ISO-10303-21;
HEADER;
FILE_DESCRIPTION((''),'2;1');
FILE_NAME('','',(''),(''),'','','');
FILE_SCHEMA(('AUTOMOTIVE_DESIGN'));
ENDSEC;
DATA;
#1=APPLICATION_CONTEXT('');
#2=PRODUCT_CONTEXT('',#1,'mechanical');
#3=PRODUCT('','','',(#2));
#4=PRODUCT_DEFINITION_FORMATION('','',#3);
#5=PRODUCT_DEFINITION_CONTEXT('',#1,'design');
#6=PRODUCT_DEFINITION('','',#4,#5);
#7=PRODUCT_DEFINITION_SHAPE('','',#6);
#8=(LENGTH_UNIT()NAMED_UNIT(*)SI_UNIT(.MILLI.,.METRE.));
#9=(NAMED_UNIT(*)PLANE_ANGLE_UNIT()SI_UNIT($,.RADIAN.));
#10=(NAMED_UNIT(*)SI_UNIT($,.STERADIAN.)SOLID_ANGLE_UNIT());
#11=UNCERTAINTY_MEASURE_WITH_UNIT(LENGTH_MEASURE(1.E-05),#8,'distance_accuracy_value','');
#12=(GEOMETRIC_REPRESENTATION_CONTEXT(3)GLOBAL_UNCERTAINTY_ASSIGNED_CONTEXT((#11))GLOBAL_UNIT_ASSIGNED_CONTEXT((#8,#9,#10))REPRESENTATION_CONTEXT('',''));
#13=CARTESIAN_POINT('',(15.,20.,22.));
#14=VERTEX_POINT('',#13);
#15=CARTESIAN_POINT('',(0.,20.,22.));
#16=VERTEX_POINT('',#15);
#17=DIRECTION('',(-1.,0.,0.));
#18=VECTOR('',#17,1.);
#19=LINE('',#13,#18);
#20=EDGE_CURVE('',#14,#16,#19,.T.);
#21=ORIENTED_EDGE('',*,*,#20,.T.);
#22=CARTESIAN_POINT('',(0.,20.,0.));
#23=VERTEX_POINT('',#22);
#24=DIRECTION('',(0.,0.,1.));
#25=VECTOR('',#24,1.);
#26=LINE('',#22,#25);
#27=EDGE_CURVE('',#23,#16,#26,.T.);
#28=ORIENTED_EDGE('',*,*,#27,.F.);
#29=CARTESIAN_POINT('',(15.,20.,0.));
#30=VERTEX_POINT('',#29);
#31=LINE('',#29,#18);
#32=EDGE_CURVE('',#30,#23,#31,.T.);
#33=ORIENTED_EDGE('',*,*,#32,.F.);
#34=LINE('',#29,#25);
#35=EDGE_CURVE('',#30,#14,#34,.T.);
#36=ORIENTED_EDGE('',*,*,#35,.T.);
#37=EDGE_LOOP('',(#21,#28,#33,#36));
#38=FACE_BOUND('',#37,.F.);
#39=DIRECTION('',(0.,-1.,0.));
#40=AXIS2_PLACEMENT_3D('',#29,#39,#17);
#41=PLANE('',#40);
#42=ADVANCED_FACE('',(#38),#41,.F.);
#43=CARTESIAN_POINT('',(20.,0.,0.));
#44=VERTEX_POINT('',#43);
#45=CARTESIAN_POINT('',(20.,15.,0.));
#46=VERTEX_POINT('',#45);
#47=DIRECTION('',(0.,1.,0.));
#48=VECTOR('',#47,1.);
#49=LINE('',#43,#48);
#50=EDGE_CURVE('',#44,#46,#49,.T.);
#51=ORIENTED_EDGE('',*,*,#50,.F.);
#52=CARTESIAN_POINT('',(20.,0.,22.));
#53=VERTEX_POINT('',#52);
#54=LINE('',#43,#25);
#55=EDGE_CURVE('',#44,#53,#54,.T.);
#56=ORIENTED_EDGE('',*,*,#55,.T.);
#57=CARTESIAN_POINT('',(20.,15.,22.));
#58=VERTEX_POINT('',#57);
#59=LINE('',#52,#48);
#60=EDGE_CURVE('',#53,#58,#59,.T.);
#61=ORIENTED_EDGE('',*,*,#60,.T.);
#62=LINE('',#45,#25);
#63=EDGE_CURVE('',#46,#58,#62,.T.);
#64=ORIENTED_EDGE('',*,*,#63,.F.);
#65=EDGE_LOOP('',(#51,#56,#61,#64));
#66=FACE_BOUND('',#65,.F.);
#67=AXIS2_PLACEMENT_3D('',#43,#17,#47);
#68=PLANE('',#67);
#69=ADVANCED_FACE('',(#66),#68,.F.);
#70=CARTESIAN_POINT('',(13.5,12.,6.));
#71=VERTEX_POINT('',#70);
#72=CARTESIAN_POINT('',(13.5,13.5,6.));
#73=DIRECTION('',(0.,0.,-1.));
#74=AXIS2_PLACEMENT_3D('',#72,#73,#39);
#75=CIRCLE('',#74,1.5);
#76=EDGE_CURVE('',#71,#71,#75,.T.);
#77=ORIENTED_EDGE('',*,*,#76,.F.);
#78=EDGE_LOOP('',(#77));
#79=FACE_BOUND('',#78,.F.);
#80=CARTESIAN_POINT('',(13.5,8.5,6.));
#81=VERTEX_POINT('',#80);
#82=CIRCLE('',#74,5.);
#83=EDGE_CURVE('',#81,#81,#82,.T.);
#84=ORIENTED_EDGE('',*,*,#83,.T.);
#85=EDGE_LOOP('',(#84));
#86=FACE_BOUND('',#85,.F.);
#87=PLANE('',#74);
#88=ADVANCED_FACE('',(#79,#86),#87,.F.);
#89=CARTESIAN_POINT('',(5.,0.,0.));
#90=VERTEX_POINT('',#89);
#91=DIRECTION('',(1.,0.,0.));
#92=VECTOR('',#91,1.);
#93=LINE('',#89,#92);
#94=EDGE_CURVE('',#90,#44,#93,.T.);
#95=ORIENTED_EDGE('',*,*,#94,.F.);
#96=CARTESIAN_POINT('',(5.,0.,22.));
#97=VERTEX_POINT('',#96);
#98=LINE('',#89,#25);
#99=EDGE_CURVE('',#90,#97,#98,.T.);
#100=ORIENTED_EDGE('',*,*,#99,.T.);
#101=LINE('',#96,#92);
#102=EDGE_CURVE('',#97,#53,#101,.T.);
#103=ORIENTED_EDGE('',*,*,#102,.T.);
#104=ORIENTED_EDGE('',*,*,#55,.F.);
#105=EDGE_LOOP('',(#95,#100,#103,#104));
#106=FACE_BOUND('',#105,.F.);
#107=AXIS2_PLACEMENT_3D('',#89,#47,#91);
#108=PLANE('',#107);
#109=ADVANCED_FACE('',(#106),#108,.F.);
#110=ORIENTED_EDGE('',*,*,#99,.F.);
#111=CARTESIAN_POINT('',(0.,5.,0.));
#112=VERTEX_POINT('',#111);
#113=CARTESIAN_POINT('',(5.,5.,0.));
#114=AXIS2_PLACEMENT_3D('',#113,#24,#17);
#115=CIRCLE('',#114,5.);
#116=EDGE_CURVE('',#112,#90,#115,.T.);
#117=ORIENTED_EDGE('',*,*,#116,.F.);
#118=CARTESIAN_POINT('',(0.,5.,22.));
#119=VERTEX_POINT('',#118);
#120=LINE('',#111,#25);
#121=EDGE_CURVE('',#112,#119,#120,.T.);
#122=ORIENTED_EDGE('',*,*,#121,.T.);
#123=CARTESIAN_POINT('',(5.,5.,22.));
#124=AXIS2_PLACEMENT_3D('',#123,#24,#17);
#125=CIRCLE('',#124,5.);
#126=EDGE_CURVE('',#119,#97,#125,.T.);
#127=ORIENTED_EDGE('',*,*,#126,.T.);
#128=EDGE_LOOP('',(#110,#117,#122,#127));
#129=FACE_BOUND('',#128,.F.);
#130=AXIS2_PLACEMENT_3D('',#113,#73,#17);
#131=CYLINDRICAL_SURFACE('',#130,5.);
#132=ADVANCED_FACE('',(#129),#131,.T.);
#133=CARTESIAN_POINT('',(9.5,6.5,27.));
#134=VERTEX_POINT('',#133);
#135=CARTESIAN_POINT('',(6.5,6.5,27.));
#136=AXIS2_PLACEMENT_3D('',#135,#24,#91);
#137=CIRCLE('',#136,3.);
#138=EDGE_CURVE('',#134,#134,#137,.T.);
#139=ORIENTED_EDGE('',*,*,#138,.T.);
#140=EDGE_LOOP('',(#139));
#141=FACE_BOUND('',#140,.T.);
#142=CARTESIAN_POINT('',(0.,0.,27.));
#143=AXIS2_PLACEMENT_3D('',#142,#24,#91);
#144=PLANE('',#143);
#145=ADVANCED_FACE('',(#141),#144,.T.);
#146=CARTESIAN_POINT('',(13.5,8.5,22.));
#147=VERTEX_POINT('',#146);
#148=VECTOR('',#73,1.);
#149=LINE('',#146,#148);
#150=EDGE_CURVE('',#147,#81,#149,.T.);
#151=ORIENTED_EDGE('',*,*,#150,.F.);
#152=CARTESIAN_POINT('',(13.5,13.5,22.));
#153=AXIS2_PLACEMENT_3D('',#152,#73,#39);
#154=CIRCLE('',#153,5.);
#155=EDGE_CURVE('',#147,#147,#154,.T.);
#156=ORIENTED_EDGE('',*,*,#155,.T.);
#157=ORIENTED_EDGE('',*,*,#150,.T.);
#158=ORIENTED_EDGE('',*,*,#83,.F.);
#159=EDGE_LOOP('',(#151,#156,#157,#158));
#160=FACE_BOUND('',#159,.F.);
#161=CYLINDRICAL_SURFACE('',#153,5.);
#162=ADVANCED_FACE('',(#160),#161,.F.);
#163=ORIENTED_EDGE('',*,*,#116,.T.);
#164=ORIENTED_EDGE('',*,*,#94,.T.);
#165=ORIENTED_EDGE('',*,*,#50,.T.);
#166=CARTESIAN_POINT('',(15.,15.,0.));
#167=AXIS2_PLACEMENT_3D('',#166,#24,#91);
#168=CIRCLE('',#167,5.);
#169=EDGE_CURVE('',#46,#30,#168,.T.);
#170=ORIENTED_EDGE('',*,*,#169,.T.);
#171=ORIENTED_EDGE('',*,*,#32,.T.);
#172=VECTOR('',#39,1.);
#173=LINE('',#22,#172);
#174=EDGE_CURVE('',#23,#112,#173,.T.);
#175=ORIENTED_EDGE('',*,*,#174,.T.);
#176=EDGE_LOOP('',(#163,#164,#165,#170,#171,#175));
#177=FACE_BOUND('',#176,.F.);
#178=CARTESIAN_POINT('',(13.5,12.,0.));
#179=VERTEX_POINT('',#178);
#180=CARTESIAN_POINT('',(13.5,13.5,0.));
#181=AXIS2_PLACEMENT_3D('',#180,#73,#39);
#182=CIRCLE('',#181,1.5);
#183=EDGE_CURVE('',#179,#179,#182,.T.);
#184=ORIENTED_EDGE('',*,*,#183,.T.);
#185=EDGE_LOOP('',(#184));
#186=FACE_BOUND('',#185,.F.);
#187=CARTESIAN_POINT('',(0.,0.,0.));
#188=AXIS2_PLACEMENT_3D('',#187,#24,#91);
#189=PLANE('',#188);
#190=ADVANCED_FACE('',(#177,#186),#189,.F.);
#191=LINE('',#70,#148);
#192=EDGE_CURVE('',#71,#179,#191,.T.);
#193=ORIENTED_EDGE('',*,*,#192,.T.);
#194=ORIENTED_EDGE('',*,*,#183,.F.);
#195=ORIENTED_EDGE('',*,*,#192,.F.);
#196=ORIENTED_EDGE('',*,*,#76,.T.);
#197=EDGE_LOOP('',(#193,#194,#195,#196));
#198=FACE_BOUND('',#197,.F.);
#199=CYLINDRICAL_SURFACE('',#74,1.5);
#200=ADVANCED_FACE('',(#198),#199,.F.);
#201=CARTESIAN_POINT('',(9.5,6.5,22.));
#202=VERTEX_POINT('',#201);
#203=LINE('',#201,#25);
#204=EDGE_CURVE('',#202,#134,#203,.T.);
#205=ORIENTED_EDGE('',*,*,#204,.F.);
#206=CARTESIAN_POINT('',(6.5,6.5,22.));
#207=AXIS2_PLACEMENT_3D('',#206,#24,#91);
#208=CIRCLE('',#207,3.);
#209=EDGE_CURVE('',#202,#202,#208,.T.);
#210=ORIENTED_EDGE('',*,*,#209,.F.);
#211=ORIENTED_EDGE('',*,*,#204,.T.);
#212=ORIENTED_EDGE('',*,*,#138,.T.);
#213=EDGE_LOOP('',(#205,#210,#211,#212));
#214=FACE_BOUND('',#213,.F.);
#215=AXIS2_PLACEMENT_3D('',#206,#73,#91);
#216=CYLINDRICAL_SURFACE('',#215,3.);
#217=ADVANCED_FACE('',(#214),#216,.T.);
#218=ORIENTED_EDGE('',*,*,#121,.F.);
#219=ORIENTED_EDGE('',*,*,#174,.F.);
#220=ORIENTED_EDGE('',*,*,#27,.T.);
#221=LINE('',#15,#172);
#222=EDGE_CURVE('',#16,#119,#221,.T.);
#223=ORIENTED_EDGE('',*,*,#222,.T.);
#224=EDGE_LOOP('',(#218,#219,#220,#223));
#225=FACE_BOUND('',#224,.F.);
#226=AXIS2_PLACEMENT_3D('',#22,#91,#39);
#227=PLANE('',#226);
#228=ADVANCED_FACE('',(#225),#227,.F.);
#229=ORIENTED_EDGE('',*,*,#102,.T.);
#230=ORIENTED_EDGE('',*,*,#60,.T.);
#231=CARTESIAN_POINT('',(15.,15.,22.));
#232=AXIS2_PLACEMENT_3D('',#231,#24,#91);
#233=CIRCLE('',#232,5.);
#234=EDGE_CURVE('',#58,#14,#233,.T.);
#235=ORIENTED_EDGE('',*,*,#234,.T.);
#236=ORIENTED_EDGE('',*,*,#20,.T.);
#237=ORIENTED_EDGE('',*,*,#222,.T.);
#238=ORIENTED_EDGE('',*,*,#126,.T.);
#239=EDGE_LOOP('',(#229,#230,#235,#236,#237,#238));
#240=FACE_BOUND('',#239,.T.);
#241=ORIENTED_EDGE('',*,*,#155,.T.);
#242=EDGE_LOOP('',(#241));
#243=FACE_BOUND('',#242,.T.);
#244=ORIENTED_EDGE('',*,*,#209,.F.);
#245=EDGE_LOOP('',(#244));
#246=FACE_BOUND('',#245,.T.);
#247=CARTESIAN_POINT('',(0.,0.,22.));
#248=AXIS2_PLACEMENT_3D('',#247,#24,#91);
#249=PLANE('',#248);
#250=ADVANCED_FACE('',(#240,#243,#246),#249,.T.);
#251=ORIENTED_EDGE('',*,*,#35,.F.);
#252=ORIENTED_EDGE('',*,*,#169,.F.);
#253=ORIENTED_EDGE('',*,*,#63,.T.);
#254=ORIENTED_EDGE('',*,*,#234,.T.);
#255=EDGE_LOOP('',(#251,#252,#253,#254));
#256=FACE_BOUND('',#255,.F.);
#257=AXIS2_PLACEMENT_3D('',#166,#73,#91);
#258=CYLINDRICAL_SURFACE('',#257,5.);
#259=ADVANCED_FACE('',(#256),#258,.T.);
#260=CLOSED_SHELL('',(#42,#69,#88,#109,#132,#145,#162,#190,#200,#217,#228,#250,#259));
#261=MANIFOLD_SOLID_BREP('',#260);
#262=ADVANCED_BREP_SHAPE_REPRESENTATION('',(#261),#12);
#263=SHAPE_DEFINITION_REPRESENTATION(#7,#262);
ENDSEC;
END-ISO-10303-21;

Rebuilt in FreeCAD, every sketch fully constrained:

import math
import FreeCAD as App
import Part
import Sketcher
from FreeCAD import Vector
Q = App.Units.Quantity

doc = App.newDocument("Part")
body = doc.addObject("PartDesign::Body", "Body")

sketch1 = body.newObject("Sketcher::SketchObject", "Sketch")
sketch1.AttachmentSupport = (doc.getObject("XY_Plane"), [""])
sketch1.MapMode = "FlatFace"
sketch1.addGeometry(Part.ArcOfCircle(Part.Circle(Vector(5, 5, 0), Vector(0, 0, 1), 5), math.radians(180), math.radians(270)), False)
sketch1.addGeometry(Part.LineSegment(Vector(5, 0, 0), Vector(20, 0, 0)), False)
sketch1.addGeometry(Part.LineSegment(Vector(20, 0, 0), Vector(20, 15, 0)), False)
sketch1.addGeometry(Part.ArcOfCircle(Part.Circle(Vector(15, 15, 0), Vector(0, 0, 1), 5), math.radians(0), math.radians(90)), False)
sketch1.addGeometry(Part.LineSegment(Vector(15, 20, 0), Vector(0, 20, 0)), False)
sketch1.addGeometry(Part.LineSegment(Vector(0, 20, 0), Vector(0, 5, 0)), False)
sketch1.addConstraint(Sketcher.Constraint("Tangent", 0, 2, 1, 1))
sketch1.addConstraint(Sketcher.Constraint("Coincident", 1, 2, 2, 1))
sketch1.addConstraint(Sketcher.Constraint("Tangent", 2, 2, 3, 1))
sketch1.addConstraint(Sketcher.Constraint("Tangent", 3, 2, 4, 1))
sketch1.addConstraint(Sketcher.Constraint("Coincident", 4, 2, 5, 1))
sketch1.addConstraint(Sketcher.Constraint("Tangent", 5, 2, 0, 1))
sketch1.addConstraint(Sketcher.Constraint("Horizontal", 1))
sketch1.addConstraint(Sketcher.Constraint("Vertical", 2))
sketch1.addConstraint(Sketcher.Constraint("Horizontal", 4))
sketch1.addConstraint(Sketcher.Constraint("Vertical", 5))
sketch1.addConstraint(Sketcher.Constraint("Equal", 0, 3))
sketch1.addConstraint(Sketcher.Constraint("PointOnObject", 0, 2, -1))
sketch1.addConstraint(Sketcher.Constraint("PointOnObject", 4, 2, -2))
sketch1.addConstraint(Sketcher.Constraint("Equal", 4, 2))
sketch1.addConstraint(Sketcher.Constraint("Radius", 0, Q("5 mm")))
sketch1.addConstraint(Sketcher.Constraint("DistanceX", -1, 1, 1, 2, Q("20 mm")))
pad1 = body.newObject("PartDesign::Pad", "Pad")
pad1.Profile = sketch1
pad1.Length = 22

sketch2 = body.newObject("Sketcher::SketchObject", "Sketch001")
sketch2.AttachmentSupport = (doc.getObject("XY_Plane"), [""])
sketch2.MapMode = "FlatFace"
sketch2.AttachmentOffset = App.Placement(Vector(0, 0, 22), App.Rotation())
sketch2.addGeometry(Part.Circle(Vector(13.5, 13.5, 0), Vector(0, 0, 1), 5), False)
sketch2.addConstraint(Sketcher.Constraint("Diameter", 0, Q("10 mm")))
sketch2.addConstraint(Sketcher.Constraint("DistanceX", -1, 1, 0, 3, Q("13.5 mm")))
sketch2.addConstraint(Sketcher.Constraint("DistanceY", -1, 1, 0, 3, Q("13.5 mm")))
doc.recompute()
hole = body.newObject("PartDesign::Hole", "Hole")
hole.Profile = sketch2
hole.ThreadType = "None"
hole.Diameter = 10
hole.DepthType = "Dimension"
hole.Depth = 16
hole.DrillPoint = "Flat"

sketch3 = body.newObject("Sketcher::SketchObject", "Sketch002")
sketch3.AttachmentSupport = (doc.getObject("XY_Plane"), [""])
sketch3.MapMode = "FlatFace"
sketch3.AttachmentOffset = App.Placement(Vector(0, 0, 6), App.Rotation())
sketch3.addGeometry(Part.Circle(Vector(13.5, 13.5, 0), Vector(0, 0, 1), 1.5), False)
sketch3.addConstraint(Sketcher.Constraint("Diameter", 0, Q("3 mm")))
sketch3.addConstraint(Sketcher.Constraint("DistanceX", -1, 1, 0, 3, Q("13.5 mm")))
sketch3.addConstraint(Sketcher.Constraint("DistanceY", -1, 1, 0, 3, Q("13.5 mm")))
doc.recompute()
hole2 = body.newObject("PartDesign::Hole", "Hole001")
hole2.Profile = sketch3
hole2.ThreadType = "None"
hole2.Diameter = 3
hole2.DepthType = "Dimension"
hole2.Depth = 16
hole2.DrillPoint = "Flat"

sketch4 = body.newObject("Sketcher::SketchObject", "Sketch003")
sketch4.AttachmentSupport = (doc.getObject("XY_Plane"), [""])
sketch4.MapMode = "FlatFace"
sketch4.AttachmentOffset = App.Placement(Vector(0, 0, 22), App.Rotation())
sketch4.addGeometry(Part.Circle(Vector(6.5, 6.5, 0), Vector(0, 0, 1), 3), False)
sketch4.addConstraint(Sketcher.Constraint("Diameter", 0, Q("6 mm")))
sketch4.addConstraint(Sketcher.Constraint("DistanceX", -1, 1, 0, 3, Q("6.5 mm")))
sketch4.addConstraint(Sketcher.Constraint("DistanceY", -1, 1, 0, 3, Q("6.5 mm")))
pad2 = body.newObject("PartDesign::Pad", "Pad001")
pad2.Profile = sketch4
pad2.Length = 5

doc.recompute()
